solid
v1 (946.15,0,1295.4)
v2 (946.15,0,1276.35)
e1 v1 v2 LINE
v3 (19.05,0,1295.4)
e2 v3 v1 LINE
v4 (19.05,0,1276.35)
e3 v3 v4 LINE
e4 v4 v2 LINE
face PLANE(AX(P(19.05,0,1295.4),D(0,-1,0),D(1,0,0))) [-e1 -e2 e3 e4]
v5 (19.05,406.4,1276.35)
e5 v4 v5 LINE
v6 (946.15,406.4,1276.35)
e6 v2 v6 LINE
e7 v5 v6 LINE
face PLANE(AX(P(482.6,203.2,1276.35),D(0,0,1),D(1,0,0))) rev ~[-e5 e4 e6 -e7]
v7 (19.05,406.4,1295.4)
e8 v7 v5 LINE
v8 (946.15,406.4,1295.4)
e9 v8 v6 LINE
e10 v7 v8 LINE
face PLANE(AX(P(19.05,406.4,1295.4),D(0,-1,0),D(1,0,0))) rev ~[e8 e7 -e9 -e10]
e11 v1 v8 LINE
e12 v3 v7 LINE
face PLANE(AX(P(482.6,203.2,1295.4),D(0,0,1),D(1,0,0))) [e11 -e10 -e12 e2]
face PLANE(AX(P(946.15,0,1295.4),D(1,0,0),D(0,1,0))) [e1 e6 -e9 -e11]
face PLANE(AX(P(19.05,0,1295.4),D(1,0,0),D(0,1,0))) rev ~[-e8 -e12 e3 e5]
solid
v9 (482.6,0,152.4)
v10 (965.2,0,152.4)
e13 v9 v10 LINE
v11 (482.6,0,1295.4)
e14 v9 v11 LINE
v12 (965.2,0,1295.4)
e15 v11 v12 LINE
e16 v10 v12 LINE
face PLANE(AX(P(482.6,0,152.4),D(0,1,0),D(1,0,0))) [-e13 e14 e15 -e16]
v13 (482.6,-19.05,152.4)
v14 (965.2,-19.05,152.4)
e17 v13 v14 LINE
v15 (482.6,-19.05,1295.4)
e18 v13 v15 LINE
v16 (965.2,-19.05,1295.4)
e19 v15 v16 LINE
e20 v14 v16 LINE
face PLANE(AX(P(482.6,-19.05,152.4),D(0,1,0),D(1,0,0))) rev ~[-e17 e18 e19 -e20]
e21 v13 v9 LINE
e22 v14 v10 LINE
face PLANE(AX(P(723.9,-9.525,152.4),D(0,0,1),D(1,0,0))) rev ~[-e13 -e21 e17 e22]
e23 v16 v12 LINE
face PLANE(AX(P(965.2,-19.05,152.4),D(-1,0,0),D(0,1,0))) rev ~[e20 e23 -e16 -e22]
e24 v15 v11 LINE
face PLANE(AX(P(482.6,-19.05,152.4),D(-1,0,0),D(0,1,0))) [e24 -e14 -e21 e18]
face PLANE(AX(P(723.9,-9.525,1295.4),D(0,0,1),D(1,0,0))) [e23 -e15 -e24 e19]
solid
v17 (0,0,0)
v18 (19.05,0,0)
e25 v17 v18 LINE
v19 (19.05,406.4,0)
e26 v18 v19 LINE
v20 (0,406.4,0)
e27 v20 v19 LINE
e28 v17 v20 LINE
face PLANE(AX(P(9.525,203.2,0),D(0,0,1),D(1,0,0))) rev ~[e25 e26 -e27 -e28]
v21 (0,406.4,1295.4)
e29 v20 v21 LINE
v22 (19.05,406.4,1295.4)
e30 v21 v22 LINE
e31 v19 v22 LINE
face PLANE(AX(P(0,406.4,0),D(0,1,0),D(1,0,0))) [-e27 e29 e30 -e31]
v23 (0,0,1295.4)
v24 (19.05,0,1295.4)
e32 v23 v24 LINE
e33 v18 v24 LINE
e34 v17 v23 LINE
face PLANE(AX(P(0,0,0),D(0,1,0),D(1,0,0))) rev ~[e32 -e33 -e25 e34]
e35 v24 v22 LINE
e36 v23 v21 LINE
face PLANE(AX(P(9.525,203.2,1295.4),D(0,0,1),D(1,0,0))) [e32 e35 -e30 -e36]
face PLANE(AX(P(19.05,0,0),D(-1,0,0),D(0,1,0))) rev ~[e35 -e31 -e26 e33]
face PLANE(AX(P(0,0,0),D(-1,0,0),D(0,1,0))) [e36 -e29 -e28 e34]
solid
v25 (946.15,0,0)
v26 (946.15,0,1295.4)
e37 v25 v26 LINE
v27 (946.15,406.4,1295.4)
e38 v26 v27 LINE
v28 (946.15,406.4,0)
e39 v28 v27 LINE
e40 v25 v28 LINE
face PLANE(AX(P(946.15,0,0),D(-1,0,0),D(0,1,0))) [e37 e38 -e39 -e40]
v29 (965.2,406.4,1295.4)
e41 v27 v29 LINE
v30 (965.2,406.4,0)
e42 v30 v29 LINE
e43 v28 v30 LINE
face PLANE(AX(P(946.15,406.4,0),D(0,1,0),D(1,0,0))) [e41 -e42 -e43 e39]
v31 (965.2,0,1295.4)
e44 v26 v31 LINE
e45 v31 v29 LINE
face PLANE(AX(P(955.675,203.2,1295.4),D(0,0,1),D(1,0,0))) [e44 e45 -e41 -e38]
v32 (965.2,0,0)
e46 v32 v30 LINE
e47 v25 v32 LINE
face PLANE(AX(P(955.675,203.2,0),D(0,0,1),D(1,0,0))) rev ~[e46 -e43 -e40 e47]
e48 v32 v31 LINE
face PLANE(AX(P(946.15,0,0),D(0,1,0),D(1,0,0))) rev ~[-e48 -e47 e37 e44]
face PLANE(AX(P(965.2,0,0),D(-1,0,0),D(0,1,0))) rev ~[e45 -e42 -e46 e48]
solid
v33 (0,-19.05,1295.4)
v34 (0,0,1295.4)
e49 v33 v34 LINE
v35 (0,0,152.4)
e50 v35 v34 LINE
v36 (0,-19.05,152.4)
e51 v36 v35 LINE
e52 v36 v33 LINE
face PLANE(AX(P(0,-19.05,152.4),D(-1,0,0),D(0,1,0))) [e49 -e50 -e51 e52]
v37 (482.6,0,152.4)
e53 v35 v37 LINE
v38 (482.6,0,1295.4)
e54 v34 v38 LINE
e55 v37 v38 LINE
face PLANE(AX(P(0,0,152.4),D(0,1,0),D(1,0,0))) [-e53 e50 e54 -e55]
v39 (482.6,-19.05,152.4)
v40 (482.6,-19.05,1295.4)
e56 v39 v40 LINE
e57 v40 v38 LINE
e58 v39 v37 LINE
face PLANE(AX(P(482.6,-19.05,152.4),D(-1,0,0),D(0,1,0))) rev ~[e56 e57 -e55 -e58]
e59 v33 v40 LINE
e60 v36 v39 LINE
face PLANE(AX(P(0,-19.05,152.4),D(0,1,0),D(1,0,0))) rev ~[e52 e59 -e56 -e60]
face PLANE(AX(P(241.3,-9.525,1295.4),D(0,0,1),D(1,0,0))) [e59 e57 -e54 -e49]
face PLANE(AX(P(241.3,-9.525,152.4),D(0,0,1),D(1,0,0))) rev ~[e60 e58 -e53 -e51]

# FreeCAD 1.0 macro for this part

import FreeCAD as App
import Part
import Sketcher
from FreeCAD import Vector
Q = App.Units.Quantity


def add_polygon(sketch, points):
    """Adds a closed chain of lines whose ends are joined by coincident constraints."""
    first, n = sketch.GeometryCount, len(points)
    for a, b in zip(points, points[1:] + points[:1]):
        sketch.addGeometry(Part.LineSegment(App.Vector(*a, 0), App.Vector(*b, 0)), False)
    for i in range(n):
        sketch.addConstraint(Sketcher.Constraint("Coincident", first + i, 2, first + (i + 1) % n, 1))

doc = App.newDocument("Part")
body = doc.addObject("PartDesign::Body", "Body")

sketch1 = doc.addObject("Sketcher::SketchObject", "Sketch")
body.addObject(sketch1)
sketch1.AttachmentSupport = (doc.XY_Plane, [""])
sketch1.MapMode = "FlatFace"
add_polygon(sketch1, [(0, 406), (0, 0), (19, 0), (19, 406)])
sketch1.addConstraint([
    Sketcher.Constraint("Vertical", 0),
    Sketcher.Constraint("Horizontal", 1),
    Sketcher.Constraint("Vertical", 2),
    Sketcher.Constraint("Horizontal", 3),
    Sketcher.Constraint("Coincident", 0, 2, -1, 1),
    Sketcher.Constraint("DistanceY", 0, 2, 0, 1, Q("16 in")),
    Sketcher.Constraint("DistanceX", 1, 1, 1, 2, Q("0.75 in")),
])
pad1 = doc.addObject("PartDesign::Pad", "Pad")
body.addObject(pad1)
pad1.Profile = sketch1
pad1.Length = Q("51 in")
body2 = doc.addObject("PartDesign::Body", "Body001")

sketch2 = doc.addObject("Sketcher::SketchObject", "Sketch001")
body2.addObject(sketch2)
sketch2.AttachmentSupport = (doc.getObject("XY_Plane001"), [""])
sketch2.MapMode = "FlatFace"
add_polygon(sketch2, [(946, 406), (946, 0), (965, 0), (965, 406)])
sketch2.addConstraint([
    Sketcher.Constraint("Vertical", 0),
    Sketcher.Constraint("Horizontal", 1),
    Sketcher.Constraint("Vertical", 2),
    Sketcher.Constraint("Horizontal", 3),
    Sketcher.Constraint("PointOnObject", 0, 2, -1),
    Sketcher.Constraint("DistanceY", 0, 2, 0, 1, Q("16 in")),
    Sketcher.Constraint("DistanceX", -1, 1, 1, 2, Q("38 in")),
    Sketcher.Constraint("DistanceX", 1, 1, 1, 2, Q("0.75 in")),
])
pad2 = doc.addObject("PartDesign::Pad", "Pad001")
body2.addObject(pad2)
pad2.Profile = sketch2
pad2.Length = Q("51 in")
body3 = doc.addObject("PartDesign::Body", "Body002")

sketch3 = doc.addObject("Sketcher::SketchObject", "Sketch002")
body3.addObject(sketch3)
sketch3.AttachmentSupport = (doc.getObject("XY_Plane002"), [""])
sketch3.MapMode = "FlatFace"
sketch3.AttachmentOffset = App.Placement(Vector(0, 0, 51 * 25.4), App.Rotation())
add_polygon(sketch3, [(19, 406), (19, 0), (946, 0), (946, 406)])
sketch3.addConstraint([
    Sketcher.Constraint("Vertical", 0),
    Sketcher.Constraint("Horizontal", 1),
    Sketcher.Constraint("Vertical", 2),
    Sketcher.Constraint("Horizontal", 3),
    Sketcher.Constraint("PointOnObject", 0, 2, -1),
    Sketcher.Constraint("DistanceY", 0, 2, 0, 1, Q("16 in")),
    Sketcher.Constraint("DistanceX", 1, 1, 1, 2, Q("36.5 in")),
    Sketcher.Constraint("DistanceX", -1, 1, 0, 2, Q("0.75 in")),
])
pad3 = doc.addObject("PartDesign::Pad", "Pad002")
body3.addObject(pad3)
pad3.Profile = sketch3
pad3.Length = Q("0.75 in")
pad3.Reversed = True
body4 = doc.addObject("PartDesign::Body", "Body003")

sketch4 = doc.addObject("Sketcher::SketchObject", "Sketch003")
body4.addObject(sketch4)
sketch4.AttachmentSupport = (doc.getObject("XY_Plane003"), [""])
sketch4.MapMode = "FlatFace"
sketch4.AttachmentOffset = App.Placement(Vector(0, 0, 6 * 25.4), App.Rotation())
add_polygon(sketch4, [(0, 0), (0, -19), (483, -19), (483, 0)])
sketch4.addConstraint([
    Sketcher.Constraint("Vertical", 0),
    Sketcher.Constraint("Horizontal", 1),
    Sketcher.Constraint("Vertical", 2),
    Sketcher.Constraint("Horizontal", 3),
    Sketcher.Constraint("Coincident", 3, 2, -1, 1),
    Sketcher.Constraint("DistanceX", 1, 1, 1, 2, Q("19 in")),
    Sketcher.Constraint("DistanceY", 0, 2, 0, 1, Q("0.75 in")),
])
pad4 = doc.addObject("PartDesign::Pad", "Pad003")
body4.addObject(pad4)
pad4.Profile = sketch4
pad4.Length = Q("45 in")
body5 = doc.addObject("PartDesign::Body", "Body004")

sketch5 = doc.addObject("Sketcher::SketchObject", "Sketch004")
body5.addObject(sketch5)
sketch5.AttachmentSupport = (doc.getObject("XY_Plane004"), [""])
sketch5.MapMode = "FlatFace"
sketch5.AttachmentOffset = App.Placement(Vector(0, 0, 6 * 25.4), App.Rotation())
add_polygon(sketch5, [(483, 0), (483, -19), (965, -19), (965, 0)])
sketch5.addConstraint([
    Sketcher.Constraint("Vertical", 0),
    Sketcher.Constraint("Horizontal", 1),
    Sketcher.Constraint("Vertical", 2),
    Sketcher.Constraint("Horizontal", 3),
    Sketcher.Constraint("PointOnObject", 2, 2, -1),
    Sketcher.Constraint("DistanceX", 1, 1, 1, 2, Q("19 in")),
    Sketcher.Constraint("DistanceX", -1, 1, 0, 2, Q("19 in")),
    Sketcher.Constraint("DistanceY", 0, 2, 0, 1, Q("0.75 in")),
])
pad5 = doc.addObject("PartDesign::Pad", "Pad004")
body5.addObject(pad5)
pad5.Profile = sketch5
pad5.Length = Q("45 in")

doc.recompute()
